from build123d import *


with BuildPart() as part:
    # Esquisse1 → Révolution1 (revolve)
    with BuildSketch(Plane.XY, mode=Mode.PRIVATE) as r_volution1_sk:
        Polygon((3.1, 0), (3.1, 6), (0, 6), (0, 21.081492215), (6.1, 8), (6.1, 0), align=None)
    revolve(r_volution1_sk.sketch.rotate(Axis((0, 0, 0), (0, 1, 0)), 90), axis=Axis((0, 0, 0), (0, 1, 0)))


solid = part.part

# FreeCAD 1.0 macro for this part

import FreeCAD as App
import Part
import Sketcher
Q = App.Units.Quantity


def add_polygon(sketch, points):
    """Adds a closed chain of lines whose ends are joined by coincident constraints."""
    first, n = sketch.GeometryCount, len(points)
    for a, b in zip(points, points[1:] + points[:1]):
        sketch.addGeometry(Part.LineSegment(App.Vector(*a, 0), App.Vector(*b, 0)), False)
    for i in range(n):
        sketch.addConstraint(Sketcher.Constraint("Coincident", first + i, 2, first + (i + 1) % n, 1))

doc = App.newDocument("Part")
body = doc.addObject("PartDesign::Body", "Body")

sketch1 = body.newObject("Sketcher::SketchObject", "Sketch")
sketch1.AttachmentSupport = (doc.getObject("XY_Plane"), [""])
sketch1.MapMode = "FlatFace"
add_polygon(sketch1, [(3.1, 6), (3.1, 0), (6.1, 0), (6.1, 8), (0, 21.081492), (0, 6)])
sketch1.addConstraint([
    Sketcher.Constraint("Vertical", 0),
    Sketcher.Constraint("Horizontal", 1),
    Sketcher.Constraint("Vertical", 2),
    Sketcher.Constraint("Vertical", 4),
    Sketcher.Constraint("Horizontal", 5),
    Sketcher.Constraint("PointOnObject", 0, 2, -1),
    Sketcher.Constraint("PointOnObject", 3, 2, -2),
    Sketcher.Constraint("DistanceX", 1, 1, 1, 2, Q("3 mm")),
    Sketcher.Constraint("DistanceY", 0, 2, 0, 1, Q("6 mm")),
    Sketcher.Constraint("DistanceY", 2, 1, 2, 2, Q("8 mm")),
    Sketcher.Constraint("Angle", 3, Q("115 deg")),
    Sketcher.Constraint("DistanceX", 5, 1, 5, 2, Q("3.1 mm")),
])
revolution = body.newObject("PartDesign::Revolution", "Revolution")
revolution.Profile = sketch1
revolution.ReferenceAxis = (sketch1, ["V_Axis"])
revolution.Angle = 360

doc.recompute()
